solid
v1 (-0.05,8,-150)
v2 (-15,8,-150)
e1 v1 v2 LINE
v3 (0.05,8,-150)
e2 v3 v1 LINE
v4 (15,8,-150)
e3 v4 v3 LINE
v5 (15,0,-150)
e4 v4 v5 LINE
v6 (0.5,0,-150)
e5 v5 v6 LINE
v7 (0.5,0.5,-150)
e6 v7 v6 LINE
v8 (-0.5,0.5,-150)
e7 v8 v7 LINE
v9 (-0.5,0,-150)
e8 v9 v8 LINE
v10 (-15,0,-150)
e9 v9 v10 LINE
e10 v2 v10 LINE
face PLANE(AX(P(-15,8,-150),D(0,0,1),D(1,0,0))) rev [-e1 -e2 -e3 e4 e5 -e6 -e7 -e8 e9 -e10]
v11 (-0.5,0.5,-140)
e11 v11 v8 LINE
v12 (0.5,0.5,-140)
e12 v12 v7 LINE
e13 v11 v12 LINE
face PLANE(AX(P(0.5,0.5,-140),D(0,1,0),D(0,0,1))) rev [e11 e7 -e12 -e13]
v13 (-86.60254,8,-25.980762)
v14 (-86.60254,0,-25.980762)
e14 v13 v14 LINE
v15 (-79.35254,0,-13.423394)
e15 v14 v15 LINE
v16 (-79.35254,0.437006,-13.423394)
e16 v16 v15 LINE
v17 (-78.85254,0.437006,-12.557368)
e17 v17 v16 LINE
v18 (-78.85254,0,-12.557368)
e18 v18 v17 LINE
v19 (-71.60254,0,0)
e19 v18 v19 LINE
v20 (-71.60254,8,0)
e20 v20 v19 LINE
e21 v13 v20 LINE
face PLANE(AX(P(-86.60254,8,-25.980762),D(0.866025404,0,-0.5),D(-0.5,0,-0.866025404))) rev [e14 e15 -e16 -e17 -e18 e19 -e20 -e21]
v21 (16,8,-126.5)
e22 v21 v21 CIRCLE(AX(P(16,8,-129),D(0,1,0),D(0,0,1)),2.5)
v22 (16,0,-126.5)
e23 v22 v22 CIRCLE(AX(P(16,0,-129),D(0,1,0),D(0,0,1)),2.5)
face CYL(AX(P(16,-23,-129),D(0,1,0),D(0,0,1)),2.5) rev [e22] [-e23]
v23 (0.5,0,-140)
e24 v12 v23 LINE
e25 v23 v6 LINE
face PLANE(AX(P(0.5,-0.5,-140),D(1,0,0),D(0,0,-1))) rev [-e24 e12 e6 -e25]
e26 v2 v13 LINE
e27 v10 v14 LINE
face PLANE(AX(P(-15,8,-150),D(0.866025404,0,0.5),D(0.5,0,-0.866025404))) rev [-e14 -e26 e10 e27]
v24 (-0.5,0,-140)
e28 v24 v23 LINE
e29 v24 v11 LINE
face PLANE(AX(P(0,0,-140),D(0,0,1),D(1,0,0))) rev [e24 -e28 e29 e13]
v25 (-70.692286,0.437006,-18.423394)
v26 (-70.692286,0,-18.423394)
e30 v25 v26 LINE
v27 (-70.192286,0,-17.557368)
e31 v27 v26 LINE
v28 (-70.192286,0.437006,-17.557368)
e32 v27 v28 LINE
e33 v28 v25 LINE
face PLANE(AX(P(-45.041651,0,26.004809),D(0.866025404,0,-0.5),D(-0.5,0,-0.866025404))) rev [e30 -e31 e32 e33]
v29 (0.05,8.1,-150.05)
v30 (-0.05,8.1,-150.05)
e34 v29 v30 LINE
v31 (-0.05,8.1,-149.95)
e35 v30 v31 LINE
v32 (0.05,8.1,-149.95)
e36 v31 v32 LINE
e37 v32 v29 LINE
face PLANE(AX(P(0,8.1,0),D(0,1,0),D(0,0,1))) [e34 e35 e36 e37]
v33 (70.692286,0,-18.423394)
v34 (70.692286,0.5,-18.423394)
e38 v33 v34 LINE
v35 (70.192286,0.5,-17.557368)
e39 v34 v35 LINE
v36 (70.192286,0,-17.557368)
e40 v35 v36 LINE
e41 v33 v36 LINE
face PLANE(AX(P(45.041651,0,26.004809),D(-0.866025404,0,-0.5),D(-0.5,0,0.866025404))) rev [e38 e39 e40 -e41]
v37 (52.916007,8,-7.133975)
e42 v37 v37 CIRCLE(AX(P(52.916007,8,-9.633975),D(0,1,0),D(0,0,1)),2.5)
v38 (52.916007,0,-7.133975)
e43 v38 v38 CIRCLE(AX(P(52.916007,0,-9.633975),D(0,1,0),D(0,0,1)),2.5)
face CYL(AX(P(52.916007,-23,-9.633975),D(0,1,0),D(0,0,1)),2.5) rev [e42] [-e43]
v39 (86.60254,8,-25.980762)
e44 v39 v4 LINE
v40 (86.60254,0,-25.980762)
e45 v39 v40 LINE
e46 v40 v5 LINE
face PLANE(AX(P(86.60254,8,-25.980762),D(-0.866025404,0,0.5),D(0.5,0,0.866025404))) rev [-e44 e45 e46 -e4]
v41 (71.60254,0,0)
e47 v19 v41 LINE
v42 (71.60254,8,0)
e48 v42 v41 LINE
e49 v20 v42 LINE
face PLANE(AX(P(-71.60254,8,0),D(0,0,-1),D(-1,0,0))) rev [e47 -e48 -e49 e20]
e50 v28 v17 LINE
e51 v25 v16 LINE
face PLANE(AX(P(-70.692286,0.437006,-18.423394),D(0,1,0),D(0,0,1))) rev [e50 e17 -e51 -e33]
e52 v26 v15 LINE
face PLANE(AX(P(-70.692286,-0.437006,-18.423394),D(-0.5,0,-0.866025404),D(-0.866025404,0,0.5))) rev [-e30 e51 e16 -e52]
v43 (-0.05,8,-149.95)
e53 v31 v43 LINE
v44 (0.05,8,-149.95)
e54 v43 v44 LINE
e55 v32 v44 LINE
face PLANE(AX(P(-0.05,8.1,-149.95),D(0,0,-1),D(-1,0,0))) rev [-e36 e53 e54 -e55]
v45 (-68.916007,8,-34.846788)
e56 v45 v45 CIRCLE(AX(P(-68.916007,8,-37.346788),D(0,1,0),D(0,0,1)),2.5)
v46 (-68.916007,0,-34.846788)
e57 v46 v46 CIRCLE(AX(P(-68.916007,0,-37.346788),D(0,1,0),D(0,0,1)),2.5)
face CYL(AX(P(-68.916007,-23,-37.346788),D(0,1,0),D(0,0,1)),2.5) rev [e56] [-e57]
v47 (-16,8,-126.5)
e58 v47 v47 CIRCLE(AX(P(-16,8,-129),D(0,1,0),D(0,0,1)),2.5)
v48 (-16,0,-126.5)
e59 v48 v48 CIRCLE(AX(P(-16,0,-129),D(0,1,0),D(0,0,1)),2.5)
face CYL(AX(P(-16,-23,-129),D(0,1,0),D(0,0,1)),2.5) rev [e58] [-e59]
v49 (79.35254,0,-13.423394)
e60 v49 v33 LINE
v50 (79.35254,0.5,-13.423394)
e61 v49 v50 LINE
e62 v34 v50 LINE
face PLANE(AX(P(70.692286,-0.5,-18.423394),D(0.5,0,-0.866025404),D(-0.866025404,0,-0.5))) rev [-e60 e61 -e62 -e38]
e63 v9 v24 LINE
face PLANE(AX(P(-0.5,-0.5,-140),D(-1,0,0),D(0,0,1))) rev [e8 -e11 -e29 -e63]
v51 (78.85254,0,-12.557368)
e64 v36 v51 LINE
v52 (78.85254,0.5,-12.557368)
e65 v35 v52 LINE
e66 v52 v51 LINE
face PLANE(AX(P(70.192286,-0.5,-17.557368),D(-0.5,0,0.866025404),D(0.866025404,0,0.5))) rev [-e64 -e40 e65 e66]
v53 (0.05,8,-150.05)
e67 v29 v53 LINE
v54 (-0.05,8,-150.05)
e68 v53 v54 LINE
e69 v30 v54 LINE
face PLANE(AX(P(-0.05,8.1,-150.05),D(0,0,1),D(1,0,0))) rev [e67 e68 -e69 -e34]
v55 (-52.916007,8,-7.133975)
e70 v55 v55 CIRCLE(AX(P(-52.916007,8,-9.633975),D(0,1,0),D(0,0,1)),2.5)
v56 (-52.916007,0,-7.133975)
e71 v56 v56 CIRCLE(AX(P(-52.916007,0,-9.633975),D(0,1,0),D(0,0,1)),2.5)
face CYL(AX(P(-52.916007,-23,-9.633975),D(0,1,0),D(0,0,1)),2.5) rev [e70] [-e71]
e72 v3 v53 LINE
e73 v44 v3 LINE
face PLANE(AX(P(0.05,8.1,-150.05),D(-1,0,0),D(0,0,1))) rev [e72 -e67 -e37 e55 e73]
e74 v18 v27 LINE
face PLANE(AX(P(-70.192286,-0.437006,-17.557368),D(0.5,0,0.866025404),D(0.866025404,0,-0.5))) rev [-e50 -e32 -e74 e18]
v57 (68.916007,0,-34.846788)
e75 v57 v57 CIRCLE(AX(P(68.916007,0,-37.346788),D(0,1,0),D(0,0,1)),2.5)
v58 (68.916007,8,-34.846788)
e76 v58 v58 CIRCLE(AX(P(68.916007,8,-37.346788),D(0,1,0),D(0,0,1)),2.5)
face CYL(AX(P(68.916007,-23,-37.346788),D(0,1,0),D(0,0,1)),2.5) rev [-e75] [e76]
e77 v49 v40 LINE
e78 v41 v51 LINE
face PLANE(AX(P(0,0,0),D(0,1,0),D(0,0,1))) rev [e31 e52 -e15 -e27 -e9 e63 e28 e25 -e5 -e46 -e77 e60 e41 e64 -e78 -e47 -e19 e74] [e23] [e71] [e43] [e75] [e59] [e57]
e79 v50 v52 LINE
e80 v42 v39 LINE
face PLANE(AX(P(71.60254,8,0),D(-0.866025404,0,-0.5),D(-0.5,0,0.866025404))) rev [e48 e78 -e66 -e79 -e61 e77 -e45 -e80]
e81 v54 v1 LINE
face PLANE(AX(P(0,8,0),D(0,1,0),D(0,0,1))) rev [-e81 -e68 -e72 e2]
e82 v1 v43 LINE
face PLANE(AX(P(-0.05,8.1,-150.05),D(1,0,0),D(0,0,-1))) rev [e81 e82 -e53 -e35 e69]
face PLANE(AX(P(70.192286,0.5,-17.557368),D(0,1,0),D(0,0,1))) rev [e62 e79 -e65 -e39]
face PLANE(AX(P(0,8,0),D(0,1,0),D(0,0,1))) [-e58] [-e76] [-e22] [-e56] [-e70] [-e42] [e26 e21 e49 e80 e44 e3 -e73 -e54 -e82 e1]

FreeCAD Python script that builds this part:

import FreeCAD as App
import Part
import Sketcher

V = App.Vector
Q = App.Units.Quantity


def add_polygon(sketch, points):
    """Adds a closed chain of lines whose ends are joined by coincident constraints."""
    first, n = sketch.GeometryCount, len(points)
    for a, b in zip(points, points[1:] + points[:1]):
        sketch.addGeometry(Part.LineSegment(App.Vector(*a, 0), App.Vector(*b, 0)), False)
    for i in range(n):
        sketch.addConstraint(Sketcher.Constraint("Coincident", first + i, 2, first + (i + 1) % n, 1))

doc = App.newDocument("Part")
params = doc.addObject("Spreadsheet::Sheet", "Params")
for row, (alias, value) in enumerate([
    ("sketch1_width", "30 mm"),
    ("sketch1_length", "30 mm"),
    ("pad1_length", "8 mm"),
    ("sketch2_diameter", "5 mm"),
    ("pocket1_length", "31 mm"),
    ("sketch3_width", "0.1 mm"),
    ("pad2_length", "0.1 mm"),
    ("sketch4_width", "1 mm"),
    ("pocket2_length", "10 mm"),
    ("sketch5_width", "1 mm"),
    ("pocket3_length", "10 mm"),
    ("sketch6_width", "1 mm"),
    ("pocket4_length", "10 mm"),
], start=1):
    params.set(f"A{row}", alias)
    params.set(f"B{row}", "=" + value)
    params.setAlias(f"B{row}", alias)

body = doc.addObject("PartDesign::Body", "Body")

# Sketch on XZ plane
sketch1 = body.newObject("Sketcher::SketchObject", "Sketch")
sketch1.AttachmentSupport = (doc.getObject("XZ_Plane"), [""])
sketch1.MapMode = "FlatFace"
add_polygon(sketch1, [(71.60254, 0), (86.60254, -25.980762), (15, -150), (-15, -150), (-86.60254, -25.980762), (-71.60254, 0)])  # lines 0-5
sketch1.addConstraint(Sketcher.Constraint("Horizontal", 2))
sketch1.addConstraint(Sketcher.Constraint("Horizontal", 5))
sketch1.addConstraint(Sketcher.Constraint("Symmetric", 4, 2, 5, 2, -1, 1))
sketch1.addConstraint(Sketcher.Constraint("Symmetric", 0, 2, 3, 2, -2))
sketch1.addConstraint(Sketcher.Constraint("Parallel", 0, 3))
sketch1.addConstraint(Sketcher.Constraint("Parallel", 1, 4))
sketch1.addConstraint(Sketcher.Constraint("DistanceX", 2, 2, 2, 1, Q("30 mm")))
sketch1.addConstraint(Sketcher.Constraint("Angle", 0, Q("-60 deg")))
sketch1.addConstraint(Sketcher.Constraint("Distance", 0, Q("30 mm")))
sketch1.addConstraint(Sketcher.Constraint("DistanceY", 1, 2, -1, 1, Q("150 mm")))
sketch1.setExpression("Constraints[12]", "Params.sketch1_width")
sketch1.setExpression("Constraints[14]", "Params.sketch1_length")
pad1 = body.newObject("PartDesign::Pad", "Pad")
pad1.Profile = sketch1
pad1.setExpression("Length", "Params.pad1_length")
pad1.Reversed = True

# Sketch on XZ plane
sketch2 = body.newObject("Sketcher::SketchObject", "Sketch001")
sketch2.AttachmentSupport = (doc.getObject("XZ_Plane"), [""])
sketch2.MapMode = "FlatFace"
sketch2.AttachmentOffset = App.Placement(V(0, 0, -8), App.Rotation())
sketch2.addGeometry(Part.Circle(V(-16, -129, 0), V(0, 0, 1), 2.5), False)
sketch2.addGeometry(Part.Circle(V(16, -129, 0), V(0, 0, 1), 2.5), False)
sketch2.addGeometry(Part.Circle(V(-52.916007, -9.633975, 0), V(0, 0, 1), 2.5), False)
sketch2.addGeometry(Part.Circle(V(-68.916007, -37.346788, 0), V(0, 0, 1), 2.5), False)
sketch2.addGeometry(Part.Circle(V(52.916007, -9.633975, 0), V(0, 0, 1), 2.5), False)
sketch2.addGeometry(Part.Circle(V(68.916007, -37.346788, 0), V(0, 0, 1), 2.5), False)
sketch2.addConstraint(Sketcher.Constraint("Equal", 0, 1))
sketch2.addConstraint(Sketcher.Constraint("Equal", 1, 2))
sketch2.addConstraint(Sketcher.Constraint("Equal", 2, 3))
sketch2.addConstraint(Sketcher.Constraint("Equal", 3, 4))
sketch2.addConstraint(Sketcher.Constraint("Equal", 4, 5))
sketch2.addConstraint(Sketcher.Constraint("Symmetric", 0, 3, 1, 3, -2))
sketch2.addConstraint(Sketcher.Constraint("Symmetric", 2, 3, 4, 3, -2))
sketch2.addConstraint(Sketcher.Constraint("Symmetric", 3, 3, 5, 3, -2))
sketch2.addConstraint(Sketcher.Constraint("Diameter", 0, Q("5 mm")))
sketch2.addConstraint(Sketcher.Constraint("DistanceX", 0, 3, -1, 1, Q("16 mm")))
sketch2.addConstraint(Sketcher.Constraint("DistanceY", 0, 3, -1, 1, Q("129 mm")))
sketch2.addConstraint(Sketcher.Constraint("DistanceX", 3, 3, 2, 3, Q("16 mm")))
sketch2.addConstraint(Sketcher.Constraint("DistanceX", 2, 3, -1, 1, Q("52.916007 mm")))
sketch2.addConstraint(Sketcher.Constraint("DistanceY", 2, 3, -1, 1, Q("9.633975 mm")))
sketch2.addConstraint(Sketcher.Constraint("DistanceY", 3, 3, -1, 1, Q("37.346788 mm")))
sketch2.setExpression("Constraints[8]", "Params.sketch2_diameter")
pocket1 = body.newObject("PartDesign::Pocket", "Pocket")
pocket1.Profile = sketch2
pocket1.setExpression("Length", "Params.pocket1_length")
pocket1.Reversed = True

# Sketch on XZ plane
sketch3 = body.newObject("Sketcher::SketchObject", "Sketch002")
sketch3.AttachmentSupport = (doc.getObject("XZ_Plane"), [""])
sketch3.MapMode = "FlatFace"
sketch3.AttachmentOffset = App.Placement(V(0, 0, -8), App.Rotation())
add_polygon(sketch3, [(-0.05, -150.05), (-0.05, -149.95), (0.05, -149.95), (0.05, -150.05)])  # lines 0-3
sketch3.addConstraint(Sketcher.Constraint("Vertical", 0))
sketch3.addConstraint(Sketcher.Constraint("Horizontal", 1))
sketch3.addConstraint(Sketcher.Constraint("Vertical", 2))
sketch3.addConstraint(Sketcher.Constraint("Horizontal", 3))
sketch3.addConstraint(Sketcher.Constraint("Equal", 3, 0))
sketch3.addConstraint(Sketcher.Constraint("DistanceX", 1, 1, 1, 2, Q("0.1 mm")))
sketch3.addConstraint(Sketcher.Constraint("DistanceX", 0, 2, -1, 1, Q("0.05 mm")))
sketch3.addConstraint(Sketcher.Constraint("DistanceY", 0, 2, -1, 1, Q("149.95 mm")))
sketch3.setExpression("Constraints[9]", "Params.sketch3_width")
pad2 = body.newObject("PartDesign::Pad", "Pad001")
pad2.Profile = sketch3
pad2.setExpression("Length", "Params.pad2_length")
pad2.Reversed = True

# Sketch on an angled plane
sketch4 = body.newObject("Sketcher::SketchObject", "Sketch003")
sketch4.Placement = App.Placement(V(-53.701905, 0, 31.004809), App.Rotation(V(0.5, 0, 0.866025404), V(0, 1, 0), V(-0.866025404, 0, 0.5), "ZXY"))
add_polygon(sketch4, [(-51.30127, 0.437006), (-51.30127, -0.437006), (-50.30127, -0.437006), (-50.30127, 0.437006)])  # lines 0-3
sketch4.addConstraint(Sketcher.Constraint("Vertical", 0))
sketch4.addConstraint(Sketcher.Constraint("Horizontal", 1))
sketch4.addConstraint(Sketcher.Constraint("Vertical", 2))
sketch4.addConstraint(Sketcher.Constraint("Horizontal", 3))
sketch4.addConstraint(Sketcher.Constraint("DistanceX", 1, 1, 1, 2, Q("1 mm")))
sketch4.addConstraint(Sketcher.Constraint("DistanceY", 0, 2, 0, 1, Q("0.874011 mm")))
sketch4.addConstraint(Sketcher.Constraint("DistanceX", 0, 2, -1, 1, Q("51.30127 mm")))
sketch4.addConstraint(Sketcher.Constraint("DistanceY", 0, 2, -1, 1, Q("0.437006 mm")))
sketch4.setExpression("Constraints[8]", "Params.sketch4_width")
pocket2 = body.newObject("PartDesign::Pocket", "Pocket001")
pocket2.Profile = sketch4
pocket2.setExpression("Length", "Params.pocket2_length")

# Sketch on an angled plane
sketch5 = body.newObject("Sketcher::SketchObject", "Sketch004")
sketch5.Placement = App.Placement(V(53.701905, 0, 31.004809), App.Rotation(V(0.5, 0, -0.866025404), V(0, 1, 0), V(0.866025404, 0, 0.5), "ZXY"))
add_polygon(sketch5, [(50.30127, 0.5), (50.30127, -0.5), (51.30127, -0.5), (51.30127, 0.5)])  # lines 0-3
sketch5.addConstraint(Sketcher.Constraint("Vertical", 0))
sketch5.addConstraint(Sketcher.Constraint("Horizontal", 1))
sketch5.addConstraint(Sketcher.Constraint("Vertical", 2))
sketch5.addConstraint(Sketcher.Constraint("Horizontal", 3))
sketch5.addConstraint(Sketcher.Constraint("Equal", 3, 0))
sketch5.addConstraint(Sketcher.Constraint("DistanceX", 1, 1, 1, 2, Q("1 mm")))
sketch5.addConstraint(Sketcher.Constraint("DistanceY", 0, 2, -1, 1, Q("0.5 mm")))
sketch5.addConstraint(Sketcher.Constraint("DistanceX", -1, 1, 0, 2, Q("50.30127 mm")))
sketch5.setExpression("Constraints[9]", "Params.sketch5_width")
pocket3 = body.newObject("PartDesign::Pocket", "Pocket002")
pocket3.Profile = sketch5
pocket3.setExpression("Length", "Params.pocket3_length")

# Sketch on XY plane
sketch6 = body.newObject("Sketcher::SketchObject", "Sketch005")
sketch6.AttachmentSupport = (doc.getObject("XY_Plane"), [""])
sketch6.MapMode = "FlatFace"
sketch6.AttachmentOffset = App.Placement(V(0, 0, -150), App.Rotation())
add_polygon(sketch6, [(0.5, 0.5), (0.5, -0.5), (-0.5, -0.5), (-0.5, 0.5)])  # lines 0-3
sketch6.addConstraint(Sketcher.Constraint("Vertical", 0))
sketch6.addConstraint(Sketcher.Constraint("Horizontal", 1))
sketch6.addConstraint(Sketcher.Constraint("Vertical", 2))
sketch6.addConstraint(Sketcher.Constraint("Horizontal", 3))
sketch6.addConstraint(Sketcher.Constraint("Symmetric", 0, 2, 2, 2, -1, 1))
sketch6.addConstraint(Sketcher.Constraint("Equal", 3, 0))
sketch6.addConstraint(Sketcher.Constraint("DistanceX", 1, 2, 1, 1, Q("1 mm")))
sketch6.setExpression("Constraints[10]", "Params.sketch6_width")
pocket4 = body.newObject("PartDesign::Pocket", "Pocket003")
pocket4.Profile = sketch6
pocket4.setExpression("Length", "Params.pocket4_length")
pocket4.Reversed = True

doc.recompute()
